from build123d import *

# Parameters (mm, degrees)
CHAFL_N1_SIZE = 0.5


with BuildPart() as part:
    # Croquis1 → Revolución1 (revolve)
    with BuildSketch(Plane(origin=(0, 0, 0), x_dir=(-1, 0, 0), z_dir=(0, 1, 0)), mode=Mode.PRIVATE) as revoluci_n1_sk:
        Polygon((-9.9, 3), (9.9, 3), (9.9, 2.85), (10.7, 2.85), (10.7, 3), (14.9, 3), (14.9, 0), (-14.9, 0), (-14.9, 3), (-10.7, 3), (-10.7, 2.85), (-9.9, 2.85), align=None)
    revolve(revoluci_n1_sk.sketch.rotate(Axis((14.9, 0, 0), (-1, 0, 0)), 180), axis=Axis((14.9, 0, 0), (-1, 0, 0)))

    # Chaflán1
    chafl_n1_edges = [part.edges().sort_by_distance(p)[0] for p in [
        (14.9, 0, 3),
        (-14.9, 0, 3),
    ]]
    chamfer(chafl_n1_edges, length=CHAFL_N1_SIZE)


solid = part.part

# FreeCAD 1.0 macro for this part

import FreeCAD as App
import Part
import Sketcher
from FreeCAD import Vector


def edges_at(feature, points):
    """Names of the edges that pass closest to the given points."""
    edges = feature.Shape.Edges
    near = lambda p: min(range(len(edges)), key=lambda i: edges[i].distToShape(Part.Vertex(*p))[0])
    return sorted({f"Edge{near(p) + 1}" for p in points})


def add_polygon(sketch, points):
    """Adds a closed chain of lines whose ends are joined by coincident constraints."""
    first, n = sketch.GeometryCount, len(points)
    for a, b in zip(points, points[1:] + points[:1]):
        sketch.addGeometry(Part.LineSegment(App.Vector(*a, 0), App.Vector(*b, 0)), False)
    for i in range(n):
        sketch.addConstraint(Sketcher.Constraint("Coincident", first + i, 2, first + (i + 1) % n, 1))

doc = App.newDocument("Part")
params = doc.addObject("Spreadsheet::Sheet", "Params")
for row, (alias, value) in enumerate([
    ("sketch1_height", "3 mm"),
    ("sketch1_width", "19.8 mm"),
    ("sketch1_width2", "0.8 mm"),
    ("sketch1_width3", "4.2 mm"),
    ("sketch1_height2", "0.15 mm"),
    ("revolution_angle", "360 deg"),
    ("chamfer_size", "0.5 mm"),
], start=1):
    params.set(f"A{row}", alias)
    params.set(f"B{row}", "=" + value)
    params.setAlias(f"B{row}", alias)

body = doc.addObject("PartDesign::Body", "Body")

# Sketch on XZ plane
sketch1 = body.newObject("Sketcher::SketchObject", "Sketch")
sketch1.AttachmentSupport = (doc.getObject("XZ_Plane"), [""])
sketch1.MapMode = "FlatFace"
add_polygon(sketch1, [(-9.9, 3), (9.9, 3), (9.9, 2.85), (10.7, 2.85), (10.7, 3), (14.9, 3), (14.9, 0), (-14.9, 0), (-14.9, 3), (-10.7, 3), (-10.7, 2.85), (-9.9, 2.85)])  # lines 0-11
sketch1.addConstraint(Sketcher.Constraint("Horizontal", 0))
sketch1.addConstraint(Sketcher.Constraint("Vertical", 1))
sketch1.addConstraint(Sketcher.Constraint("Horizontal", 2))
sketch1.addConstraint(Sketcher.Constraint("Vertical", 3))
sketch1.addConstraint(Sketcher.Constraint("Horizontal", 4))
sketch1.addConstraint(Sketcher.Constraint("Vertical", 5))
sketch1.addConstraint(Sketcher.Constraint("Horizontal", 6))
sketch1.addConstraint(Sketcher.Constraint("Vertical", 7))
sketch1.addConstraint(Sketcher.Constraint("Horizontal", 8))
sketch1.addConstraint(Sketcher.Constraint("Vertical", 9))
sketch1.addConstraint(Sketcher.Constraint("Horizontal", 10))
sketch1.addConstraint(Sketcher.Constraint("Vertical", 11))
sketch1.addConstraint(Sketcher.Constraint("Symmetric", 5, 2, 6, 2, -1, 1))
sketch1.addConstraint(Sketcher.Constraint("Symmetric", 3, 2, 8, 2, -2))
sketch1.addConstraint(Sketcher.Constraint("Symmetric", 1, 2, 10, 2, -2))
sketch1.addConstraint(Sketcher.Constraint("Horizontal", 0, 2, 3, 2))
sketch1.addConstraint(Sketcher.Constraint("DistanceY", 5, 2, 5, 1, 3.0))
sketch1.addConstraint(Sketcher.Constraint("DistanceX", 0, 1, 0, 2, 19.8))
sketch1.addConstraint(Sketcher.Constraint("DistanceX", 2, 1, 2, 2, 0.8))
sketch1.addConstraint(Sketcher.Constraint("DistanceX", 4, 1, 4, 2, 4.2))
sketch1.addConstraint(Sketcher.Constraint("DistanceY", 1, 2, 1, 1, 0.15))
sketch1.setExpression("Constraints[28]", "Params.sketch1_height")
sketch1.setExpression("Constraints[29]", "Params.sketch1_width")
sketch1.setExpression("Constraints[30]", "Params.sketch1_width2")
sketch1.setExpression("Constraints[31]", "Params.sketch1_width3")
sketch1.setExpression("Constraints[32]", "Params.sketch1_height2")
revolution = body.newObject("PartDesign::Revolution", "Revolution")
revolution.Profile = sketch1
revolution.ReferenceAxis = (sketch1, ["H_Axis"])
revolution.setExpression("Angle", "Params.revolution_angle")
doc.recompute()

chamfer = body.newObject("PartDesign::Chamfer", "Chamfer")
chamfer.Base = (revolution, edges_at(revolution, [(14.9, 0, 3), (-14.9, 0, 3)]))
chamfer.setExpression("Size", "Params.chamfer_size")

doc.recompute()
